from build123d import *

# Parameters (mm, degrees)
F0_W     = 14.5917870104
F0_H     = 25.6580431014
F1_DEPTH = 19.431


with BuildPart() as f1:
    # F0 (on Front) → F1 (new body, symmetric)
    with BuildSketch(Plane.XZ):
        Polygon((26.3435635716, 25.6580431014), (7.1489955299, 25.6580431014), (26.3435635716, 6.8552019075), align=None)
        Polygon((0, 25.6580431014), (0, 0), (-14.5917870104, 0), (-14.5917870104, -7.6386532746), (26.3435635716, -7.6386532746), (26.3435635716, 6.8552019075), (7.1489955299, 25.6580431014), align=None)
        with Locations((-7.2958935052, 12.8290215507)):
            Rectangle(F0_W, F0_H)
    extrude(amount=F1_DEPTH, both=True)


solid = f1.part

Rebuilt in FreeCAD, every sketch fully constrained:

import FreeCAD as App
import Part
import Sketcher

V = App.Vector
Q = App.Units.Quantity


def add_polygon(sketch, points):
    """Adds a closed chain of lines whose ends are joined by coincident constraints."""
    first, n = sketch.GeometryCount, len(points)
    for a, b in zip(points, points[1:] + points[:1]):
        sketch.addGeometry(Part.LineSegment(App.Vector(*a, 0), App.Vector(*b, 0)), False)
    for i in range(n):
        sketch.addConstraint(Sketcher.Constraint("Coincident", first + i, 2, first + (i + 1) % n, 1))

doc = App.newDocument("Part")
body = doc.addObject("PartDesign::Body", "Body")

# Sketch on XZ plane
sketch1 = body.newObject("Sketcher::SketchObject", "Sketch")
sketch1.AttachmentSupport = (doc.getObject("XZ_Plane"), [""])
sketch1.MapMode = "FlatFace"
add_polygon(sketch1, [(26.343564, 25.658043), (-14.591787, 25.658043), (-14.591787, -7.638653), (26.343564, -7.638653)])  # lines 0-3
sketch1.addConstraint([
    Sketcher.Constraint("Horizontal", 0),
    Sketcher.Constraint("Vertical", 1),
    Sketcher.Constraint("Horizontal", 2),
    Sketcher.Constraint("Vertical", 3),
    Sketcher.Constraint("DistanceX", 0, 2, 0, 1, Q("40.935351 mm")),
    Sketcher.Constraint("DistanceY", 1, 2, 1, 1, Q("33.296696 mm")),
    Sketcher.Constraint("DistanceX", 0, 2, -1, 1, Q("14.591787 mm")),
    Sketcher.Constraint("DistanceY", -1, 1, 0, 2, Q("25.658043 mm")),
])
pad1 = body.newObject("PartDesign::Pad", "Pad")
pad1.Profile = sketch1
pad1.Length = Q("1.53 in")
pad1.Midplane = True

doc.recompute()
